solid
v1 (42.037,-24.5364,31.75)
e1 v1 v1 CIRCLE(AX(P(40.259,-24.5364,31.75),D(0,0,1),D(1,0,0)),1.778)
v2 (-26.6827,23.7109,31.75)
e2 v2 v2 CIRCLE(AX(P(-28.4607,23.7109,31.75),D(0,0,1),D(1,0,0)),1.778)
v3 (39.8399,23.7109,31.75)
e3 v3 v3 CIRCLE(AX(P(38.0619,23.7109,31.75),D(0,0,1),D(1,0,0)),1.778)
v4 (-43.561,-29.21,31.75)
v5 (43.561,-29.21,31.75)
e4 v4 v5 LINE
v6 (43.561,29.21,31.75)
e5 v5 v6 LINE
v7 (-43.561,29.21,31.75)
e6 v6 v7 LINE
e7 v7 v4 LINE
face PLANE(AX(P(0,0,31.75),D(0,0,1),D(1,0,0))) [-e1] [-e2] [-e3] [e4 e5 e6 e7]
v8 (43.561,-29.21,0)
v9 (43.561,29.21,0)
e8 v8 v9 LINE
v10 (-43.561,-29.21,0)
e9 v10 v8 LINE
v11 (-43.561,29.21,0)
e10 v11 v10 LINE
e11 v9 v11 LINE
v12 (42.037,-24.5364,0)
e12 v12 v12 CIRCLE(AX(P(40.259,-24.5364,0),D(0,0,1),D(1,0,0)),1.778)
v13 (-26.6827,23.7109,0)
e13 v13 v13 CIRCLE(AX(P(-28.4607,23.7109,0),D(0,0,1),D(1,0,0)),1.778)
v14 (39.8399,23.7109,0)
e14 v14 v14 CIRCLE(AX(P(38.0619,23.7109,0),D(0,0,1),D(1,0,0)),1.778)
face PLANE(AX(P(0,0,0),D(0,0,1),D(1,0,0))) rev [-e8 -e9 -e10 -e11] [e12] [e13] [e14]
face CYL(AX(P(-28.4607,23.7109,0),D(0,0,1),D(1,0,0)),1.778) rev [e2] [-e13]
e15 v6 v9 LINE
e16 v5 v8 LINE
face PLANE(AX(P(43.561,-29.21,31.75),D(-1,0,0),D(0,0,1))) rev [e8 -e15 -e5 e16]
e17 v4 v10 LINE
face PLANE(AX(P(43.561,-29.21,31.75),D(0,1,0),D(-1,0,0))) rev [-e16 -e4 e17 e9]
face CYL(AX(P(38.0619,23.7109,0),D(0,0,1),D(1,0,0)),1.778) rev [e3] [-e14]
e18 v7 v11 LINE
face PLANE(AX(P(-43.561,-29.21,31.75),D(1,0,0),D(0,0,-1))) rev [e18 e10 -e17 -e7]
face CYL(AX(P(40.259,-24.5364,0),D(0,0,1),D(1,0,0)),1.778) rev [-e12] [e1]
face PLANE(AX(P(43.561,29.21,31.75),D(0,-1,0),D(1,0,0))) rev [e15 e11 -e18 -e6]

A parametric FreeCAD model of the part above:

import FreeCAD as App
import Part
import Sketcher
Q = App.Units.Quantity

doc = App.newDocument("Part")
params = doc.addObject("Spreadsheet::Sheet", "Params")
for row, (alias, value) in enumerate([
    ("sketch1_height", "2.3 in"),
    ("sketch1_width", "3.43 in"),
    ("pad1_length", "1.25 in"),
    ("sketch2_diameter", "0.14 in"),
], start=1):
    params.set(f"A{row}", alias)
    params.set(f"B{row}", "=" + value)
    params.setAlias(f"B{row}", alias)

body = doc.addObject("PartDesign::Body", "Body")

# Sketch on XY plane
sketch1 = body.newObject("Sketcher::SketchObject", "Sketch")
sketch1.AttachmentSupport = (doc.getObject("XY_Plane"), [""])
sketch1.MapMode = "FlatFace"
sketch1.addGeometry([
    Part.LineSegment(App.Vector(-44, 29, 0), App.Vector(-44, -29, 0)),
    Part.LineSegment(App.Vector(-44, -29, 0), App.Vector(44, -29, 0)),
    Part.LineSegment(App.Vector(44, -29, 0), App.Vector(44, 29, 0)),
    Part.LineSegment(App.Vector(44, 29, 0), App.Vector(-44, 29, 0)),
], False)
sketch1.addConstraint([
    Sketcher.Constraint("Coincident", 0, 2, 1, 1),
    Sketcher.Constraint("Coincident", 1, 2, 2, 1),
    Sketcher.Constraint("Coincident", 2, 2, 3, 1),
    Sketcher.Constraint("Coincident", 3, 2, 0, 1),
    Sketcher.Constraint("Vertical", 0),
    Sketcher.Constraint("Horizontal", 1),
    Sketcher.Constraint("Vertical", 2),
    Sketcher.Constraint("Horizontal", 3),
    Sketcher.Constraint("Symmetric", 0, 2, 2, 2, -1, 1),
    Sketcher.Constraint("DistanceY", 0, 2, 0, 1, Q("2.3 in")),
    Sketcher.Constraint("DistanceX", 1, 1, 1, 2, Q("3.43 in")),
])
sketch1.setExpression("Constraints[9]", "Params.sketch1_height")
sketch1.setExpression("Constraints[10]", "Params.sketch1_width")
pad1 = body.newObject("PartDesign::Pad", "Pad")
pad1.Profile = sketch1
pad1.setExpression("Length", "Params.pad1_length")

# Sketch on XY plane
sketch2 = body.newObject("Sketcher::SketchObject", "Sketch001")
sketch2.AttachmentSupport = (doc.getObject("XY_Plane"), [""])
sketch2.MapMode = "FlatFace"
sketch2.AttachmentOffset = App.Placement(App.Vector(0, 0, 1.25 * 25.4), App.Rotation())
sketch2.addGeometry([
    Part.Circle(App.Vector(-28.5, 23.7, 0), App.Vector(0, 0, 1), 1.8),
    Part.Circle(App.Vector(38.1, 23.7, 0), App.Vector(0, 0, 1), 1.8),
    Part.Circle(App.Vector(40.3, -24.5, 0), App.Vector(0, 0, 1), 1.8),
], False)
sketch2.addConstraint([
    Sketcher.Constraint("Equal", 0, 1),
    Sketcher.Constraint("Equal", 1, 2),
    Sketcher.Constraint("Horizontal", 0, 3, 1, 3),
    Sketcher.Constraint("Diameter", 0, Q("0.14 in")),
    Sketcher.Constraint("DistanceX", -1, 1, 2, 3, Q("1.585 in")),
    Sketcher.Constraint("DistanceY", 2, 3, -1, 1, Q("0.966 in")),
    Sketcher.Constraint("DistanceX", 0, 3, 1, 3, Q("2.619 in")),
    Sketcher.Constraint("DistanceX", 0, 3, -1, 1, Q("1.1205 in")),
    Sketcher.Constraint("DistanceY", -1, 1, 0, 3, Q("0.9335 in")),
])
sketch2.setExpression("Constraints[3]", "Params.sketch2_diameter")
pocket1 = body.newObject("PartDesign::Pocket", "Pocket")
pocket1.Profile = sketch2
pocket1.Type = "ThroughAll"

doc.recompute()
